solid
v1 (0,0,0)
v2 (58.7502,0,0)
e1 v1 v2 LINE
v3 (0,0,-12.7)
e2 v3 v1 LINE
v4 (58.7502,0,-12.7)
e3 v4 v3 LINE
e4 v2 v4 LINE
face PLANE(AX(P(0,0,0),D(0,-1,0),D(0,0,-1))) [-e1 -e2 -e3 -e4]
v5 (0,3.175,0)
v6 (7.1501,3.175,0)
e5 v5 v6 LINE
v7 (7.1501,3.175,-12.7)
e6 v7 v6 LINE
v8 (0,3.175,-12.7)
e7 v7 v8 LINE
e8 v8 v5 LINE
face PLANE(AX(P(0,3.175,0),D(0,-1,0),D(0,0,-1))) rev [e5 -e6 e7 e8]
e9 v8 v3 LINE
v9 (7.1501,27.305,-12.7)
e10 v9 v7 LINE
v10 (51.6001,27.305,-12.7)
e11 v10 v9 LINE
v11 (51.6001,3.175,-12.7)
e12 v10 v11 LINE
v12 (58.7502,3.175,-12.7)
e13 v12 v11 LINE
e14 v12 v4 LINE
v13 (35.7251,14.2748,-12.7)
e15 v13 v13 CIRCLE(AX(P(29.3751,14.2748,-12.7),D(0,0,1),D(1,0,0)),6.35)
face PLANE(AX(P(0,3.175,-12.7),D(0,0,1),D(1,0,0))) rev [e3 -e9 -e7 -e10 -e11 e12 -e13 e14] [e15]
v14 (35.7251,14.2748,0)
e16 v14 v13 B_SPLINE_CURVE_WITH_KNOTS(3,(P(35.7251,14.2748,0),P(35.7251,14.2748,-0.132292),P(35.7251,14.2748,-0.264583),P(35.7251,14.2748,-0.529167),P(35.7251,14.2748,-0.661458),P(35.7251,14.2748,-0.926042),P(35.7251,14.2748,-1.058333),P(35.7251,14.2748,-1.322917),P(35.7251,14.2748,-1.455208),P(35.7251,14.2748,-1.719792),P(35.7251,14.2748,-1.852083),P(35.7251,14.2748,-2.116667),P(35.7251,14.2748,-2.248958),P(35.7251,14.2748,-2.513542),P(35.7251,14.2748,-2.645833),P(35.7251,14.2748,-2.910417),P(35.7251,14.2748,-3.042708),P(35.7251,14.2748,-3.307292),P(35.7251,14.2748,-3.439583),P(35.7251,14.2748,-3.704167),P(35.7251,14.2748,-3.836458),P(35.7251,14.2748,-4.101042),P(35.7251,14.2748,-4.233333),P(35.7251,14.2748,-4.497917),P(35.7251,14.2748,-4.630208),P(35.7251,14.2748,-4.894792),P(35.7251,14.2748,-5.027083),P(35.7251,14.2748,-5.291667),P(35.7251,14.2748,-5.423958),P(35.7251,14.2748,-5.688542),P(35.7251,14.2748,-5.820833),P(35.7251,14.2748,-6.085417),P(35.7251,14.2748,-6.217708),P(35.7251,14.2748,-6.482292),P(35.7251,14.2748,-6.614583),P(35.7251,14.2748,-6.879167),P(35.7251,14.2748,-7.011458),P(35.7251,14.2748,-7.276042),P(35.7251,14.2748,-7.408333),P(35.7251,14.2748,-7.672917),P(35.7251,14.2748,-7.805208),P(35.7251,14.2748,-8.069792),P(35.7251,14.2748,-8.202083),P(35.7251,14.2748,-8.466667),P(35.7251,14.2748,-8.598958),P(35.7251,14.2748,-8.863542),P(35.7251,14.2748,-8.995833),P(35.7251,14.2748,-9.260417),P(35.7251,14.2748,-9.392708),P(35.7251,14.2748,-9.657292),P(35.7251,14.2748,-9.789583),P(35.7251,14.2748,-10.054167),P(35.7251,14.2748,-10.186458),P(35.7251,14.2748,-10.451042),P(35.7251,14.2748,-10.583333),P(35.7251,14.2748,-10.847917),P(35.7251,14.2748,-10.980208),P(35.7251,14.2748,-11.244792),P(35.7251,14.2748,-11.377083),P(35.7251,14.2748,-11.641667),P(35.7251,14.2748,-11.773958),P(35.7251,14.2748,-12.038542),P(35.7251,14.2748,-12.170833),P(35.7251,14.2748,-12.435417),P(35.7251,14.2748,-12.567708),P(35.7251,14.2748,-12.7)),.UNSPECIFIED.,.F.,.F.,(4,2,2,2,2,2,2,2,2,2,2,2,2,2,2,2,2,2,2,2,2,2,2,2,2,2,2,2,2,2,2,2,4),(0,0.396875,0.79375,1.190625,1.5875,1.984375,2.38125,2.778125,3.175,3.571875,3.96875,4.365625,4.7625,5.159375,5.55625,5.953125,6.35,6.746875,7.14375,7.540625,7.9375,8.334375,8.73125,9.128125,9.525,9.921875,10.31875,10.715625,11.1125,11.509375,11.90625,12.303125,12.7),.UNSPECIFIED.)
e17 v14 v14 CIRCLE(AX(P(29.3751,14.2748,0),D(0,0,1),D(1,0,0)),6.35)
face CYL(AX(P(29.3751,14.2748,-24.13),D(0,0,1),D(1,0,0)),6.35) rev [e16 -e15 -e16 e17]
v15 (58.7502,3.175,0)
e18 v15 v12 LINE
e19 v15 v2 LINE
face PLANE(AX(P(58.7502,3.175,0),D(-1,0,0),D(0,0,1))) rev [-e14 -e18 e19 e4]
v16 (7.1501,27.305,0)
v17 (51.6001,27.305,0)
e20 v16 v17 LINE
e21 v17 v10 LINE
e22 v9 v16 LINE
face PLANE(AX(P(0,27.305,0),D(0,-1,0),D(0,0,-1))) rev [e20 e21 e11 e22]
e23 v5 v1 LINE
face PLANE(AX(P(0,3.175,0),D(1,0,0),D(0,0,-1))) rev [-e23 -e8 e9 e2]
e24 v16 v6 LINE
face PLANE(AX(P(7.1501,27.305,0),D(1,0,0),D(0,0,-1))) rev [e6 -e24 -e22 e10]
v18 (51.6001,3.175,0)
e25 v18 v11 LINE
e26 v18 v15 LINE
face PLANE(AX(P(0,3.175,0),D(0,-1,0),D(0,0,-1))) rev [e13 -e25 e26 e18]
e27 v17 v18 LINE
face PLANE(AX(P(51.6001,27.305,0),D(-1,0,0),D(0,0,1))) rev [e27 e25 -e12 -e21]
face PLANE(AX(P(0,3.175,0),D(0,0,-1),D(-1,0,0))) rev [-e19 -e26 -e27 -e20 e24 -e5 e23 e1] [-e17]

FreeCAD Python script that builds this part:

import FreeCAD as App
import Part
import Sketcher

V = App.Vector
Q = App.Units.Quantity


def add_polygon(sketch, points):
    """Adds a closed chain of lines whose ends are joined by coincident constraints."""
    first, n = sketch.GeometryCount, len(points)
    for a, b in zip(points, points[1:] + points[:1]):
        sketch.addGeometry(Part.LineSegment(App.Vector(*a, 0), App.Vector(*b, 0)), False)
    for i in range(n):
        sketch.addConstraint(Sketcher.Constraint("Coincident", first + i, 2, first + (i + 1) % n, 1))

doc = App.newDocument("Part")
params = doc.addObject("Spreadsheet::Sheet", "Params")
for row, (alias, value) in enumerate([
    ("sketch1_height", "0.5 in"),
    ("sketch1_width", "2.313 in"),
    ("pad1_length", "0.125 in"),
    ("sketch2_height", "0.5 in"),
    ("sketch2_width", "1.75 in"),
    ("pad2_length", "0.95 in"),
    ("sketch3_diameter", "0.5 in"),
    ("pocket1_length", "0.95 in"),
], start=1):
    params.set(f"A{row}", alias)
    params.set(f"B{row}", "=" + value)
    params.setAlias(f"B{row}", alias)

body = doc.addObject("PartDesign::Body", "Body")

# Sketch on XZ plane
sketch1 = body.newObject("Sketcher::SketchObject", "Sketch")
sketch1.AttachmentSupport = (doc.getObject("XZ_Plane"), [""])
sketch1.MapMode = "FlatFace"
add_polygon(sketch1, [(0, -13), (0, 0), (59, 0), (59, -13)])  # lines 0-3
sketch1.addConstraint([
    Sketcher.Constraint("Vertical", 0),
    Sketcher.Constraint("Horizontal", 1),
    Sketcher.Constraint("Vertical", 2),
    Sketcher.Constraint("Horizontal", 3),
    Sketcher.Constraint("Coincident", 0, 2, -1, 1),
    Sketcher.Constraint("DistanceY", 0, 1, 0, 2, Q("0.5 in")),
    Sketcher.Constraint("DistanceX", 1, 1, 1, 2, Q("2.313 in")),
])
sketch1.setExpression("Constraints[9]", "Params.sketch1_height")
sketch1.setExpression("Constraints[10]", "Params.sketch1_width")
pad1 = body.newObject("PartDesign::Pad", "Pad")
pad1.Profile = sketch1
pad1.setExpression("Length", "Params.pad1_length")
pad1.Reversed = True

# Sketch on XZ plane
sketch2 = body.newObject("Sketcher::SketchObject", "Sketch001")
sketch2.AttachmentSupport = (doc.getObject("XZ_Plane"), [""])
sketch2.MapMode = "FlatFace"
sketch2.AttachmentOffset = App.Placement(V(0, 0, -0.125 * 25.4), App.Rotation())
add_polygon(sketch2, [(7, -13), (7, 0), (52, 0), (52, -13)])  # lines 0-3
sketch2.addConstraint([
    Sketcher.Constraint("Vertical", 0),
    Sketcher.Constraint("Horizontal", 1),
    Sketcher.Constraint("Vertical", 2),
    Sketcher.Constraint("Horizontal", 3),
    Sketcher.Constraint("PointOnObject", 0, 2, -1),
    Sketcher.Constraint("DistanceY", 0, 1, 0, 2, Q("0.5 in")),
    Sketcher.Constraint("DistanceX", 1, 1, 1, 2, Q("1.75 in")),
    Sketcher.Constraint("DistanceX", -1, 1, 0, 2, Q("0.2815 in")),
])
sketch2.setExpression("Constraints[9]", "Params.sketch2_height")
sketch2.setExpression("Constraints[10]", "Params.sketch2_width")
pad2 = body.newObject("PartDesign::Pad", "Pad001")
pad2.Profile = sketch2
pad2.setExpression("Length", "Params.pad2_length")
pad2.Reversed = True

# Sketch on XY plane
sketch3 = body.newObject("Sketcher::SketchObject", "Sketch002")
sketch3.AttachmentSupport = (doc.getObject("XY_Plane"), [""])
sketch3.MapMode = "FlatFace"
sketch3.addGeometry(Part.Circle(V(29, 14, 0), V(0, 0, 1), 6), False)
sketch3.addConstraint([
    Sketcher.Constraint("Diameter", 0, Q("0.5 in")),
    Sketcher.Constraint("DistanceY", -1, 1, 0, 3, Q("0.562 in")),
    Sketcher.Constraint("DistanceX", -1, 1, 0, 3, Q("1.1565 in")),
])
sketch3.setExpression("Constraints[0]", "Params.sketch3_diameter")
pocket1 = body.newObject("PartDesign::Pocket", "Pocket")
pocket1.Profile = sketch3
pocket1.setExpression("Length", "Params.pocket1_length")

doc.recompute()
